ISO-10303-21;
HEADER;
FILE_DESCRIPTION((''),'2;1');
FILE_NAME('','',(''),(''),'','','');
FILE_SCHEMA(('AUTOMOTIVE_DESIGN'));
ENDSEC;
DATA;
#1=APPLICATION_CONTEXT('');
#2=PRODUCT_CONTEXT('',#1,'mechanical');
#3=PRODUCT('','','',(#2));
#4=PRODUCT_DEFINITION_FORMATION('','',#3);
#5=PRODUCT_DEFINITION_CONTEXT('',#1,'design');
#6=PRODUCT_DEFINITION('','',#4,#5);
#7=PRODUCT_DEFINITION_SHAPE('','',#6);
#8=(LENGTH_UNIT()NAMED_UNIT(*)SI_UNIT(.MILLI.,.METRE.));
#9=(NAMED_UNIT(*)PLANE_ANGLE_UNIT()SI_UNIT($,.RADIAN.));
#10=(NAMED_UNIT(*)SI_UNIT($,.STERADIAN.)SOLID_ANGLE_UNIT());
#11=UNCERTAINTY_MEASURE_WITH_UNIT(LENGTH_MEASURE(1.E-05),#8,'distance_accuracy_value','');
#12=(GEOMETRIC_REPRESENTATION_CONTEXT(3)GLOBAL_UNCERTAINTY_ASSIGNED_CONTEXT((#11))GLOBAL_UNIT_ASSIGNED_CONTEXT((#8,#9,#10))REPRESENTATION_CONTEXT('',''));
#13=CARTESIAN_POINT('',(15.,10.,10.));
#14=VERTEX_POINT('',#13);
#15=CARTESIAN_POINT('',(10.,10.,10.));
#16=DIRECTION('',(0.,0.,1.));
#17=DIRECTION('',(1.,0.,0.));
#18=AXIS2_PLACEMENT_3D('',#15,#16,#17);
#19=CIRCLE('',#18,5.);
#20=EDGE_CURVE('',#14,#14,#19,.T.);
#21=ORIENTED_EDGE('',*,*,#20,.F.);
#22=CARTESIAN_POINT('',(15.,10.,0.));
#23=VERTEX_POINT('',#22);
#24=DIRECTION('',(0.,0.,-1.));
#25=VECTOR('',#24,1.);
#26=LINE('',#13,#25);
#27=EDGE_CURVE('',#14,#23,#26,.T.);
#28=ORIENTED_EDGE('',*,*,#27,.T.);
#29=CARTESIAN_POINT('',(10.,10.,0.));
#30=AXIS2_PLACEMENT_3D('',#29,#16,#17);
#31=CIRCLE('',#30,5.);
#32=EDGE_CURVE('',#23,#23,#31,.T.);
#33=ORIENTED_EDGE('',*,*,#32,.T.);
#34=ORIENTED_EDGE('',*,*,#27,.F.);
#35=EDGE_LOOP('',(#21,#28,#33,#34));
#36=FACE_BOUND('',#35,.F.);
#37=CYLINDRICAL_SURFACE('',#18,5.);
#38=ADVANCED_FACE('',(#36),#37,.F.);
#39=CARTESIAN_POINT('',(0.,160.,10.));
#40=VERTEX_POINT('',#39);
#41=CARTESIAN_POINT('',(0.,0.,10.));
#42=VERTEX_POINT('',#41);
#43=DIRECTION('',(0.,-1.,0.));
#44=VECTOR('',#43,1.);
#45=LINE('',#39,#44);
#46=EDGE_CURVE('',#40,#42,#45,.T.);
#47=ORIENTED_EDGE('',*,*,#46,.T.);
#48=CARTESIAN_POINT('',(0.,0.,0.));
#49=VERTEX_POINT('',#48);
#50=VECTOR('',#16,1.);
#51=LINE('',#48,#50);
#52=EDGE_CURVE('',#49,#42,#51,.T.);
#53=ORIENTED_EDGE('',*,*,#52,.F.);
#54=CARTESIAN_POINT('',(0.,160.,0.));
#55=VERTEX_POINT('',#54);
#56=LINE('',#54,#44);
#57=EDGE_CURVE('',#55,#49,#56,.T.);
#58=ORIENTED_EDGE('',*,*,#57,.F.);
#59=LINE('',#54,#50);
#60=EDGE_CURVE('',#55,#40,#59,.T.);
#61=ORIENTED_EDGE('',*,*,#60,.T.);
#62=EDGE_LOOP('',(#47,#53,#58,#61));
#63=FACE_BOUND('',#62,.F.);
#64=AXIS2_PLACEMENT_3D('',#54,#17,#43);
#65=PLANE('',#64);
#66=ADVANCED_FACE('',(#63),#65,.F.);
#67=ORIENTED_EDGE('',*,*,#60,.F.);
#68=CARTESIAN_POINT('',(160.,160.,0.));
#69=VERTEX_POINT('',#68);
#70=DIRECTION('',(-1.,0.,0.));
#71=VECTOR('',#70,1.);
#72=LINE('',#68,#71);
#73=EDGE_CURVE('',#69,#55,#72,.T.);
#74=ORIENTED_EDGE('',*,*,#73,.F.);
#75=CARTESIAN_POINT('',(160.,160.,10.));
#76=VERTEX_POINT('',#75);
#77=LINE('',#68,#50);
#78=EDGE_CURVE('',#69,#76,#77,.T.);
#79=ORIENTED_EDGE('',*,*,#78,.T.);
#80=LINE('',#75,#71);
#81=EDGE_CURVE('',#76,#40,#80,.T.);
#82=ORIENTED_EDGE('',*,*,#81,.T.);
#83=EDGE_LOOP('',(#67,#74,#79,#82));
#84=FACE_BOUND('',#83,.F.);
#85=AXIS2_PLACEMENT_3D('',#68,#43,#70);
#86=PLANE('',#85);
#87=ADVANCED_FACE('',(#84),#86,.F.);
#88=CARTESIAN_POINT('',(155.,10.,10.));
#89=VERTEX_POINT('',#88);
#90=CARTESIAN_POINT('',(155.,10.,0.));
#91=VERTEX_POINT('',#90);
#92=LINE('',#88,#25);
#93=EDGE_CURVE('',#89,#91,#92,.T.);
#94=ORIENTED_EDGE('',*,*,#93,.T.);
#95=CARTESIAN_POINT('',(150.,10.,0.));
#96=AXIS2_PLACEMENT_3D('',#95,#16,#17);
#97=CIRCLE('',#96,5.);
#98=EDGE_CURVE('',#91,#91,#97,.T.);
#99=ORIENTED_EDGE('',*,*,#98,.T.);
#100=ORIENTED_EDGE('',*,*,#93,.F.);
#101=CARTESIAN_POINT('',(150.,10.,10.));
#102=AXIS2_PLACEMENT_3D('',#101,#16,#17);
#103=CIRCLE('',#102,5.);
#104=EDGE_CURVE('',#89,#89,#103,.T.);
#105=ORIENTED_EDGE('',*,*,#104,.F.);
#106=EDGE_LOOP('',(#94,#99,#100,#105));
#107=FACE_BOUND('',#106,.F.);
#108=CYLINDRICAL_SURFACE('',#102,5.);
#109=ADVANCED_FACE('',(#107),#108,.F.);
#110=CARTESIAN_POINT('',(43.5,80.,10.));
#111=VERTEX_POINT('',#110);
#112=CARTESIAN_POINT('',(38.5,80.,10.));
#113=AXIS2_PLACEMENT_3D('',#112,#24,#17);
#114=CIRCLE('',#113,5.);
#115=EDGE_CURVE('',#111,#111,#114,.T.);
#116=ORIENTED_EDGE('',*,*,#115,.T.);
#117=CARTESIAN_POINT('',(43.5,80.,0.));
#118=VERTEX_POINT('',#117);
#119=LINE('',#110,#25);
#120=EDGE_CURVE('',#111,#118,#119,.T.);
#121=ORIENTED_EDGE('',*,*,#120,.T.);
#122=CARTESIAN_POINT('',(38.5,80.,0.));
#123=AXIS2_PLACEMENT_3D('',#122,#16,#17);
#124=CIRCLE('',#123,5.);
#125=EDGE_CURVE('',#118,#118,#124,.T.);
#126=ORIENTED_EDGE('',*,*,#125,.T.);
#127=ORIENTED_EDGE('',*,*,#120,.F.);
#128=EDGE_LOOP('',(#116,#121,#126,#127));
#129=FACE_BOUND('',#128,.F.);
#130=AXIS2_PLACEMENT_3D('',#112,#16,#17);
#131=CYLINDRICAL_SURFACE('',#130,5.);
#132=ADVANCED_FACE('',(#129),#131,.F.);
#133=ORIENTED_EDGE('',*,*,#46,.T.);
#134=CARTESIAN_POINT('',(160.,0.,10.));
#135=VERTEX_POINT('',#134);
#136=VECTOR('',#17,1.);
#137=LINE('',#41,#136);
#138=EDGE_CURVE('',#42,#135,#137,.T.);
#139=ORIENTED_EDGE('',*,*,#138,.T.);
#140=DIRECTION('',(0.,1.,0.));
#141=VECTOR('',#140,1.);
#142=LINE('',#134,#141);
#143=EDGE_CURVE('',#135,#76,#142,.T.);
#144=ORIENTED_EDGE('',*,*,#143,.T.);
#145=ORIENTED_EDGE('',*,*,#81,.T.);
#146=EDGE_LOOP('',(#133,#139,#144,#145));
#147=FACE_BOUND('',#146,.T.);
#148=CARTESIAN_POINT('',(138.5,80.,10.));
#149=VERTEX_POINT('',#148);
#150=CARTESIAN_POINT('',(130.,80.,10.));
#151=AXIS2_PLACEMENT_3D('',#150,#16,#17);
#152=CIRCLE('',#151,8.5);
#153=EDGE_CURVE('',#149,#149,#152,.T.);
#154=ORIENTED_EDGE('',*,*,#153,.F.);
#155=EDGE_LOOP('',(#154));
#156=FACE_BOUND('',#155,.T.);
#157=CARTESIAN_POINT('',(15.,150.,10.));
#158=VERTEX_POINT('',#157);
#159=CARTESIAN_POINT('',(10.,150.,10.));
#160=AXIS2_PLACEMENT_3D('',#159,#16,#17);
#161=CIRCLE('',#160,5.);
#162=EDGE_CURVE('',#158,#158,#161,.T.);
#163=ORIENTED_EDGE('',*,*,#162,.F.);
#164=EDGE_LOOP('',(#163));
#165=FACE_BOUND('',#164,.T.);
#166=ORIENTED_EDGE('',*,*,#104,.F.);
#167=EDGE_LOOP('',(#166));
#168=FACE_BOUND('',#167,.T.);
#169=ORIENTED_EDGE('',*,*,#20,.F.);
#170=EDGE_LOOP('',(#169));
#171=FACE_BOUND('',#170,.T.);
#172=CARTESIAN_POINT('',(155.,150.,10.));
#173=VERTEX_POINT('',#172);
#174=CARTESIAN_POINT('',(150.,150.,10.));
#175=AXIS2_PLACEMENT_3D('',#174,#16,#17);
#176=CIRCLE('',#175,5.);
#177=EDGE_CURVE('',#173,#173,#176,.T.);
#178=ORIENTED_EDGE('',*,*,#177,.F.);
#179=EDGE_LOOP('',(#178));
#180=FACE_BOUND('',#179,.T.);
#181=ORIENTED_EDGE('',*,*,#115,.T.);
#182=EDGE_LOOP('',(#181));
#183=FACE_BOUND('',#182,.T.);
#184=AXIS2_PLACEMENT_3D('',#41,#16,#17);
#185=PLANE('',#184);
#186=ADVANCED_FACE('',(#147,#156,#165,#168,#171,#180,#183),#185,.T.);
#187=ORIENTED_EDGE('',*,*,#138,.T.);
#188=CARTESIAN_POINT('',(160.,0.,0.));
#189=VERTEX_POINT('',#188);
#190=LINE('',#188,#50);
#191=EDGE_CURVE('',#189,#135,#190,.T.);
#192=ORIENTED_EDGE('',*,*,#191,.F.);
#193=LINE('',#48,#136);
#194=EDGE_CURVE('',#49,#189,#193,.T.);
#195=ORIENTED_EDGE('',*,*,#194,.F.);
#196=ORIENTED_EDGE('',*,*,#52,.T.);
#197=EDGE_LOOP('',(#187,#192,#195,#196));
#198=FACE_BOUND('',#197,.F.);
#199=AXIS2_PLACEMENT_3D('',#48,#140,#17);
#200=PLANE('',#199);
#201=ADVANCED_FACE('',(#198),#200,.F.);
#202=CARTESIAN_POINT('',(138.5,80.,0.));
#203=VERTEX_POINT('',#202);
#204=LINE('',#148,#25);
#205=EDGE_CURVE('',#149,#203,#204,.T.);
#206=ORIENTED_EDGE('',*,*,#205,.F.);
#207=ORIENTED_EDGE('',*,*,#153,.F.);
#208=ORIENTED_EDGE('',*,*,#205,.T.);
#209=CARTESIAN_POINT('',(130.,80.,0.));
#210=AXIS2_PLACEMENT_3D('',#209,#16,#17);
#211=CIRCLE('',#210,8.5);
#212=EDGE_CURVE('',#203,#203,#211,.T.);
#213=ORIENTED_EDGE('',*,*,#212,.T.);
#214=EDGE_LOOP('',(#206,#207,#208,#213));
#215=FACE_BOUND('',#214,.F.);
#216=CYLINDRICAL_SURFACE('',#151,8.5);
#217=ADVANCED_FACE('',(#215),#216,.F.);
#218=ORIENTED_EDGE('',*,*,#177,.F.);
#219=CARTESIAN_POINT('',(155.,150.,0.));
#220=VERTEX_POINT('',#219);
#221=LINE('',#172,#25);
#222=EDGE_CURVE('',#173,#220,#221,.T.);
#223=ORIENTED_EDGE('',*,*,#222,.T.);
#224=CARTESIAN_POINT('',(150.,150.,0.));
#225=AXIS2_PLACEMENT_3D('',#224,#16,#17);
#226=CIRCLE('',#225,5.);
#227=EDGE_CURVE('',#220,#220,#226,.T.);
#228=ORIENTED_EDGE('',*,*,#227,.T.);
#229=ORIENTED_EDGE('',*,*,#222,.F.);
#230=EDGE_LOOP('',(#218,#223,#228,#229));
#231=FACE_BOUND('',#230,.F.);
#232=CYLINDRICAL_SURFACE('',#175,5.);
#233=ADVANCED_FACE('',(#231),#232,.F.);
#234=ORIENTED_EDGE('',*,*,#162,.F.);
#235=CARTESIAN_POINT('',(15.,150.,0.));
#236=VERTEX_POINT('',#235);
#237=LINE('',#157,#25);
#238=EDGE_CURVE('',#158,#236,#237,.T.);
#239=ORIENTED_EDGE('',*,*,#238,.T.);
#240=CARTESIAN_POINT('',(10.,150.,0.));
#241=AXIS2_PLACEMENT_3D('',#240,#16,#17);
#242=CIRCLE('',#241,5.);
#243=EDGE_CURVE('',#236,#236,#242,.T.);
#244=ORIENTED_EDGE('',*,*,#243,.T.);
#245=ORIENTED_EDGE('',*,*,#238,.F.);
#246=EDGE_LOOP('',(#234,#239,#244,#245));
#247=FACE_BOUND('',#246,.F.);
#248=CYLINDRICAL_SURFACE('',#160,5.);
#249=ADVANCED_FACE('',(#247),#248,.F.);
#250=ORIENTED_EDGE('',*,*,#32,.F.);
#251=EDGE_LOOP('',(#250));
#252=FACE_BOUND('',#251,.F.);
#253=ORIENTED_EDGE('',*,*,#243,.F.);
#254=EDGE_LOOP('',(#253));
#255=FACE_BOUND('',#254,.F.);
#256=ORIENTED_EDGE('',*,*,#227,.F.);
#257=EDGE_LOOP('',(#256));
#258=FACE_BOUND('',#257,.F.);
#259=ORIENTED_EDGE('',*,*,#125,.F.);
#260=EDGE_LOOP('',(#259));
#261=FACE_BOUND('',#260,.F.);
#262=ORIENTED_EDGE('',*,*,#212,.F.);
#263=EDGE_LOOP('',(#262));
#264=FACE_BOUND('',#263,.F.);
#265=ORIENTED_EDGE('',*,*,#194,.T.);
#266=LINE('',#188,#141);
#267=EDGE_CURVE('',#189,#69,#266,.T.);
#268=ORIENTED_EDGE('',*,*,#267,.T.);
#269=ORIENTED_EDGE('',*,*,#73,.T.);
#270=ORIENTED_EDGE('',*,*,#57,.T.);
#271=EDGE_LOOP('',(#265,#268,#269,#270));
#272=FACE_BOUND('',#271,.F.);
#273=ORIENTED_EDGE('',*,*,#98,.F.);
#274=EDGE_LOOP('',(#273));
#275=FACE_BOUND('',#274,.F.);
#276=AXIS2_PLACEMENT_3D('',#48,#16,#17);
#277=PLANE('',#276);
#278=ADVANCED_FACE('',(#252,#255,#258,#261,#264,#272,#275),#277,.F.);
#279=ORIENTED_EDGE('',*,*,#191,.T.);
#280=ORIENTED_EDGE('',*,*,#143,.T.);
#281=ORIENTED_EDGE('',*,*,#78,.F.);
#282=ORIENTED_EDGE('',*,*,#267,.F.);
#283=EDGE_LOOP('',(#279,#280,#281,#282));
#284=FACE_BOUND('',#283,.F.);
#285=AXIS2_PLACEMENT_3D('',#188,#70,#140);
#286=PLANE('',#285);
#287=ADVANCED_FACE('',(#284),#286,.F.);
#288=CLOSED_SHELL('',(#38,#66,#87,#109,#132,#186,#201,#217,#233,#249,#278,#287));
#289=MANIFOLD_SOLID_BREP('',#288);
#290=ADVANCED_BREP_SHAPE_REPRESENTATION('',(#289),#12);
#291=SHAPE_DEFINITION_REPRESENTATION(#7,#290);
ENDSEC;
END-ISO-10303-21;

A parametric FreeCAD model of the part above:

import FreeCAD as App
import Part
import Sketcher

V = App.Vector


def add_polygon(sketch, points):
    """Adds a closed chain of lines whose ends are joined by coincident constraints."""
    first, n = sketch.GeometryCount, len(points)
    for a, b in zip(points, points[1:] + points[:1]):
        sketch.addGeometry(Part.LineSegment(App.Vector(*a, 0), App.Vector(*b, 0)), False)
    for i in range(n):
        sketch.addConstraint(Sketcher.Constraint("Coincident", first + i, 2, first + (i + 1) % n, 1))

doc = App.newDocument("Part")
body = doc.addObject("PartDesign::Body", "Body")

# Sketch on XY plane
sketch1 = body.newObject("Sketcher::SketchObject", "Sketch")
sketch1.AttachmentSupport = (doc.getObject("XY_Plane"), [""])
sketch1.MapMode = "FlatFace"
add_polygon(sketch1, [(0, 160), (0, 0), (160, 0), (160, 160)])  # lines 0-3
sketch1.addConstraint([
    Sketcher.Constraint("Vertical", 0),
    Sketcher.Constraint("Horizontal", 1),
    Sketcher.Constraint("Vertical", 2),
    Sketcher.Constraint("Horizontal", 3),
    Sketcher.Constraint("Coincident", 0, 2, -1, 1),
    Sketcher.Constraint("Equal", 3, 0),
    Sketcher.Constraint("DistanceX", 1, 1, 1, 2, 160.0),
])
pad1 = body.newObject("PartDesign::Pad", "Pad")
pad1.Profile = sketch1
pad1.Length = 10

# Sketch on XY plane
sketch2 = body.newObject("Sketcher::SketchObject", "Sketch001")
sketch2.AttachmentSupport = (doc.getObject("XY_Plane"), [""])
sketch2.MapMode = "FlatFace"
sketch2.AttachmentOffset = App.Placement(V(0, 0, 10), App.Rotation())
sketch2.addGeometry([
    Part.Circle(V(10, 10, 0), V(0, 0, 1), 5),
    Part.Circle(V(10, 150, 0), V(0, 0, 1), 5),
    Part.Circle(V(150, 150, 0), V(0, 0, 1), 5),
    Part.Circle(V(150, 10, 0), V(0, 0, 1), 5),
], False)
sketch2.addConstraint([
    Sketcher.Constraint("Equal", 0, 1),
    Sketcher.Constraint("Equal", 1, 2),
    Sketcher.Constraint("Equal", 2, 3),
    Sketcher.Constraint("Horizontal", 1, 3, 2, 3),
    Sketcher.Constraint("Horizontal", 0, 3, 3, 3),
    Sketcher.Constraint("Vertical", 0, 3, 1, 3),
    Sketcher.Constraint("Vertical", 2, 3, 3, 3),
    Sketcher.Constraint("Diameter", 0, 10.0),
    Sketcher.Constraint("DistanceX", -1, 1, 0, 3, 10.0),
    Sketcher.Constraint("DistanceY", -1, 1, 0, 3, 10.0),
    Sketcher.Constraint("DistanceY", -1, 1, 1, 3, 150.0),
    Sketcher.Constraint("DistanceX", -1, 1, 2, 3, 150.0),
])
pocket1 = body.newObject("PartDesign::Pocket", "Pocket")
pocket1.Profile = sketch2
pocket1.Type = "ThroughAll"

# Sketch on XY plane
sketch3 = body.newObject("Sketcher::SketchObject", "Sketch002")
sketch3.AttachmentSupport = (doc.getObject("XY_Plane"), [""])
sketch3.MapMode = "FlatFace"
sketch3.AttachmentOffset = App.Placement(V(0, 0, 10), App.Rotation())
sketch3.addGeometry([
    Part.Circle(V(130, 80, 0), V(0, 0, 1), 8.5),
    Part.Circle(V(38.5, 80, 0), V(0, 0, 1), 5),
], False)
sketch3.addConstraint([
    Sketcher.Constraint("Horizontal", 0, 3, 1, 3),
    Sketcher.Constraint("Diameter", 0, 17.0),
    Sketcher.Constraint("Diameter", 1, 10.0),
    Sketcher.Constraint("DistanceY", -1, 1, 0, 3, 80.0),
    Sketcher.Constraint("DistanceX", -1, 1, 1, 3, 38.5),
    Sketcher.Constraint("DistanceX", -1, 1, 0, 3, 130.0),
])
pocket2 = body.newObject("PartDesign::Pocket", "Pocket001")
pocket2.Profile = sketch3
pocket2.Type = "ThroughAll"

doc.recompute()
